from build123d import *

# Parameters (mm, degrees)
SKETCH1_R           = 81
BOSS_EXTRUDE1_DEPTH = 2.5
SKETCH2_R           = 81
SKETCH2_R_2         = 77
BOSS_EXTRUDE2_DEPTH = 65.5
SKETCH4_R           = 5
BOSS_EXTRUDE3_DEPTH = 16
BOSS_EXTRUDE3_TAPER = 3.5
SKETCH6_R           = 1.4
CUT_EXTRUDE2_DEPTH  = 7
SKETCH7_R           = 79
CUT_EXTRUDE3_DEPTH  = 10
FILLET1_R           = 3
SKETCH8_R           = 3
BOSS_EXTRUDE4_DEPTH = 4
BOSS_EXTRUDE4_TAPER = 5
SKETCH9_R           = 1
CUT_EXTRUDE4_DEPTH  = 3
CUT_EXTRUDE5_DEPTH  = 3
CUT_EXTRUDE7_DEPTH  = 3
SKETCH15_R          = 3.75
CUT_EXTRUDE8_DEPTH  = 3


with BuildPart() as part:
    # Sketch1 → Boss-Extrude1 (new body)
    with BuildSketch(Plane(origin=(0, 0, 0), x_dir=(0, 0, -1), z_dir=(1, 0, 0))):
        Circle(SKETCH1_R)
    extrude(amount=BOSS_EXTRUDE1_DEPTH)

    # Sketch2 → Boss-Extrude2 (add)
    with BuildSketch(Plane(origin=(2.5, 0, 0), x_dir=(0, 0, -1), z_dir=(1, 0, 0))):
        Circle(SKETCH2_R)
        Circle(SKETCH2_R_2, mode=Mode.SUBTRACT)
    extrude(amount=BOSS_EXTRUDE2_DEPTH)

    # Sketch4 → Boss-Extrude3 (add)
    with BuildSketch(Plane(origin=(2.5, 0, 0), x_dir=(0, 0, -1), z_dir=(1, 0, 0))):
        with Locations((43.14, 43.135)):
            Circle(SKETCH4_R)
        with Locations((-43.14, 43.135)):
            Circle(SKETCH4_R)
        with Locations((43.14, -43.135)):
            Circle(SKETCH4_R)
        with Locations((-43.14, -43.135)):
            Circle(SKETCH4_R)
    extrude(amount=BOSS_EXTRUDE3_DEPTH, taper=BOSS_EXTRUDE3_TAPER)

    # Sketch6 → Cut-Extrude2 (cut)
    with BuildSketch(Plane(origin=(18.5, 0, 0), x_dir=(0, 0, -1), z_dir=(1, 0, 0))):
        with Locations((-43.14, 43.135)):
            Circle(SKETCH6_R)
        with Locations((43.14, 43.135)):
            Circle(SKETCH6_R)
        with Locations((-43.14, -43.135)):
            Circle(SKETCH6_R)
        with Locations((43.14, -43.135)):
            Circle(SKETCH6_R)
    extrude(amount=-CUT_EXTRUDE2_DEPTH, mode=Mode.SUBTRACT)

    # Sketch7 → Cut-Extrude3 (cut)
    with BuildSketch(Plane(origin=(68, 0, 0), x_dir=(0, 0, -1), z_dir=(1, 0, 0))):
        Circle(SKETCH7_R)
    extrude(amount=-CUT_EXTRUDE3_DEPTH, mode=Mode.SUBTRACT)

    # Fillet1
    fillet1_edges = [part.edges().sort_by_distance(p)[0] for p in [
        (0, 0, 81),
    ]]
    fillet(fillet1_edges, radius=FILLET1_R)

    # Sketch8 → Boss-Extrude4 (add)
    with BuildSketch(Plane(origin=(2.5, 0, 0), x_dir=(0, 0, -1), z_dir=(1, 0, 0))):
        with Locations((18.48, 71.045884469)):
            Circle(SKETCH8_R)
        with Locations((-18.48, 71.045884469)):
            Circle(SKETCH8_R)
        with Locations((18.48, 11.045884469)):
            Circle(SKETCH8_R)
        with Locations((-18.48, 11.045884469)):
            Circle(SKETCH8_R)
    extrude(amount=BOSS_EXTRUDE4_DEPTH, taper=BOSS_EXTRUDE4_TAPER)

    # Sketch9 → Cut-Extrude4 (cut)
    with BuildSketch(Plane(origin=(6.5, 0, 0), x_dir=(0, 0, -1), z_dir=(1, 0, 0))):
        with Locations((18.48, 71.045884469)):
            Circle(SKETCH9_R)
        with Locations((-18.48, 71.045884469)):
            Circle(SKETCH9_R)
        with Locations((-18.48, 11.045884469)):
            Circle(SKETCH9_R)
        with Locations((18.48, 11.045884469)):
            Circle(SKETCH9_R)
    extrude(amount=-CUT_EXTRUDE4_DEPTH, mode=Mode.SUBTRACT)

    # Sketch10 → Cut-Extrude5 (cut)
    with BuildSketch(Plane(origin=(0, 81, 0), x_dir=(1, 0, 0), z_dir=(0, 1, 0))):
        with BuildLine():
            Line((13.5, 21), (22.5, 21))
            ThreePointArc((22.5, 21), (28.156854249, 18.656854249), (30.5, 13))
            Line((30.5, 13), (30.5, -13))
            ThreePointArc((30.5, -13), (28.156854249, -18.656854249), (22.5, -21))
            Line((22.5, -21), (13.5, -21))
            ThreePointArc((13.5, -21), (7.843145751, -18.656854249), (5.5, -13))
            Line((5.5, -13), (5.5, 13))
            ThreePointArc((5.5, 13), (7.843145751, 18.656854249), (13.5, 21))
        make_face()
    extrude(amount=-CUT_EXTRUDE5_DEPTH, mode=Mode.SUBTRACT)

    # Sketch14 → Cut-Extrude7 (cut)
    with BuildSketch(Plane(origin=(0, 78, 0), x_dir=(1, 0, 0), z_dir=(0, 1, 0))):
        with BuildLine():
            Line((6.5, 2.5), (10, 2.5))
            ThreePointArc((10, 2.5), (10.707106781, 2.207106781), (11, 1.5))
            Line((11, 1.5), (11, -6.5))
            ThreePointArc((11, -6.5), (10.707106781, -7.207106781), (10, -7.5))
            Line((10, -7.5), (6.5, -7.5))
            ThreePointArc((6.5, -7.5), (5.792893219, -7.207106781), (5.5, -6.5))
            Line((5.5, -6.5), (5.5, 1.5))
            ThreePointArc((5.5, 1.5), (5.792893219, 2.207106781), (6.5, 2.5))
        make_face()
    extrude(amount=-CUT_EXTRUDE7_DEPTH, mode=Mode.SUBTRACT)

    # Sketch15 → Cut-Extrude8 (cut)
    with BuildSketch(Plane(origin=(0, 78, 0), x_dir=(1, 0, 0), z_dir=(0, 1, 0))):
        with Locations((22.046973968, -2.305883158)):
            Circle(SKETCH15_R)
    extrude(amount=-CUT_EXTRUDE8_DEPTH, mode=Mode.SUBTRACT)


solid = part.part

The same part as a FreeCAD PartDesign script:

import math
import FreeCAD as App
import Part
import Sketcher

V = App.Vector
Q = App.Units.Quantity


def edges_at(feature, points):
    """Names of the edges that pass closest to the given points."""
    edges = feature.Shape.Edges
    near = lambda p: min(range(len(edges)), key=lambda i: edges[i].distToShape(Part.Vertex(*p))[0])
    return sorted({f"Edge{near(p) + 1}" for p in points})

doc = App.newDocument("Part")
params = doc.addObject("Spreadsheet::Sheet", "Params")
for row, (alias, value) in enumerate([
    ("sketch1_diameter", "162 mm"),
    ("pad1_length", "2.5 mm"),
    ("sketch2_diameter", "162 mm"),
    ("sketch2_diameter2", "154 mm"),
    ("pad2_length", "65.5 mm"),
    ("sketch3_diameter", "10 mm"),
    ("pad3_length", "16 mm"),
    ("pad3_taper", "-3.5 deg"),
    ("sketch4_diameter", "2.8 mm"),
    ("pocket1_length", "7 mm"),
    ("sketch5_diameter", "158 mm"),
    ("pocket2_length", "10 mm"),
    ("fillet_radius", "3 mm"),
    ("sketch6_diameter", "6 mm"),
    ("pad4_length", "4 mm"),
    ("pad4_taper", "-5 deg"),
    ("sketch7_diameter", "2 mm"),
    ("pocket3_length", "3 mm"),
    ("sketch8_radius", "8 mm"),
    ("sketch8_width", "9 mm"),
    ("sketch8_height", "26 mm"),
    ("pocket4_length", "3 mm"),
    ("sketch9_radius", "1 mm"),
    ("sketch9_height", "8 mm"),
    ("sketch9_width", "3.5 mm"),
    ("pocket5_length", "3 mm"),
    ("sketch10_diameter", "7.5 mm"),
    ("pocket6_length", "3 mm"),
], start=1):
    params.set(f"A{row}", alias)
    params.set(f"B{row}", "=" + value)
    params.setAlias(f"B{row}", alias)

body = doc.addObject("PartDesign::Body", "Body")

# Sketch on YZ plane
sketch1 = body.newObject("Sketcher::SketchObject", "Sketch")
sketch1.AttachmentSupport = (doc.getObject("YZ_Plane"), [""])
sketch1.MapMode = "FlatFace"
sketch1.addGeometry(Part.Circle(V(0, 0, 0), V(0, 0, 1), 81), False)
sketch1.addConstraint([
    Sketcher.Constraint("Coincident", 0, 3, -1, 1),
    Sketcher.Constraint("Diameter", 0, Q("162 mm")),
])
sketch1.setExpression("Constraints[1]", "Params.sketch1_diameter")
pad1 = body.newObject("PartDesign::Pad", "Pad")
pad1.Profile = sketch1
pad1.setExpression("Length", "Params.pad1_length")

# Sketch on YZ plane
sketch2 = body.newObject("Sketcher::SketchObject", "Sketch001")
sketch2.AttachmentSupport = (doc.getObject("YZ_Plane"), [""])
sketch2.MapMode = "FlatFace"
sketch2.AttachmentOffset = App.Placement(V(0, 0, 2.5), App.Rotation())
sketch2.addGeometry([
    Part.Circle(V(0, 0, 0), V(0, 0, 1), 81),
    Part.Circle(V(0, 0, 0), V(0, 0, 1), 77),
], False)
sketch2.addConstraint([
    Sketcher.Constraint("Coincident", 0, 3, -1, 1),
    Sketcher.Constraint("Coincident", 1, 3, -1, 1),
    Sketcher.Constraint("Diameter", 0, Q("162 mm")),
    Sketcher.Constraint("Diameter", 1, Q("154 mm")),
])
sketch2.setExpression("Constraints[2]", "Params.sketch2_diameter")
sketch2.setExpression("Constraints[3]", "Params.sketch2_diameter2")
pad2 = body.newObject("PartDesign::Pad", "Pad001")
pad2.Profile = sketch2
pad2.setExpression("Length", "Params.pad2_length")

# Sketch on YZ plane
sketch3 = body.newObject("Sketcher::SketchObject", "Sketch002")
sketch3.AttachmentSupport = (doc.getObject("YZ_Plane"), [""])
sketch3.MapMode = "FlatFace"
sketch3.AttachmentOffset = App.Placement(V(0, 0, 2.5), App.Rotation())
sketch3.addGeometry([
    Part.Circle(V(43.135, -43.14, 0), V(0, 0, 1), 5),
    Part.Circle(V(43.135, 43.14, 0), V(0, 0, 1), 5),
    Part.Circle(V(-43.135, -43.14, 0), V(0, 0, 1), 5),
    Part.Circle(V(-43.135, 43.14, 0), V(0, 0, 1), 5),
], False)
sketch3.addConstraint([
    Sketcher.Constraint("Equal", 0, 1),
    Sketcher.Constraint("Equal", 1, 2),
    Sketcher.Constraint("Equal", 2, 3),
    Sketcher.Constraint("Symmetric", 1, 3, 2, 3, -1, 1),
    Sketcher.Constraint("Symmetric", 0, 3, 3, 3, -1, 1),
    Sketcher.Constraint("Symmetric", 0, 3, 2, 3, -2),
    Sketcher.Constraint("Diameter", 0, Q("10 mm")),
    Sketcher.Constraint("DistanceY", 0, 3, -1, 1, Q("43.14 mm")),
    Sketcher.Constraint("DistanceX", 2, 3, 0, 3, Q("86.27 mm")),
])
sketch3.setExpression("Constraints[6]", "Params.sketch3_diameter")
pad3 = body.newObject("PartDesign::Pad", "Pad002")
pad3.Profile = sketch3
pad3.setExpression("Length", "Params.pad3_length")
pad3.setExpression("TaperAngle", "Params.pad3_taper")

# Sketch on YZ plane
sketch4 = body.newObject("Sketcher::SketchObject", "Sketch003")
sketch4.AttachmentSupport = (doc.getObject("YZ_Plane"), [""])
sketch4.MapMode = "FlatFace"
sketch4.AttachmentOffset = App.Placement(V(0, 0, 18.5), App.Rotation())
sketch4.addGeometry([
    Part.Circle(V(43.135, 43.14, 0), V(0, 0, 1), 1.4),
    Part.Circle(V(43.135, -43.14, 0), V(0, 0, 1), 1.4),
    Part.Circle(V(-43.135, 43.14, 0), V(0, 0, 1), 1.4),
    Part.Circle(V(-43.135, -43.14, 0), V(0, 0, 1), 1.4),
], False)
sketch4.addConstraint([
    Sketcher.Constraint("Equal", 0, 1),
    Sketcher.Constraint("Equal", 1, 2),
    Sketcher.Constraint("Equal", 2, 3),
    Sketcher.Constraint("Symmetric", 1, 3, 2, 3, -1, 1),
    Sketcher.Constraint("Symmetric", 0, 3, 3, 3, -1, 1),
    Sketcher.Constraint("Symmetric", 0, 3, 2, 3, -2),
    Sketcher.Constraint("Diameter", 0, Q("2.8 mm")),
    Sketcher.Constraint("DistanceY", -1, 1, 0, 3, Q("43.14 mm")),
    Sketcher.Constraint("DistanceX", 2, 3, 0, 3, Q("86.27 mm")),
])
sketch4.setExpression("Constraints[6]", "Params.sketch4_diameter")
pocket1 = body.newObject("PartDesign::Pocket", "Pocket")
pocket1.Profile = sketch4
pocket1.setExpression("Length", "Params.pocket1_length")

# Sketch on YZ plane
sketch5 = body.newObject("Sketcher::SketchObject", "Sketch004")
sketch5.AttachmentSupport = (doc.getObject("YZ_Plane"), [""])
sketch5.MapMode = "FlatFace"
sketch5.AttachmentOffset = App.Placement(V(0, 0, 68), App.Rotation())
sketch5.addGeometry(Part.Circle(V(0, 0, 0), V(0, 0, 1), 79), False)
sketch5.addConstraint([
    Sketcher.Constraint("Coincident", 0, 3, -1, 1),
    Sketcher.Constraint("Diameter", 0, Q("158 mm")),
])
sketch5.setExpression("Constraints[1]", "Params.sketch5_diameter")
pocket2 = body.newObject("PartDesign::Pocket", "Pocket001")
pocket2.Profile = sketch5
pocket2.setExpression("Length", "Params.pocket2_length")
doc.recompute()

fillet = body.newObject("PartDesign::Fillet", "Fillet")
fillet.Base = (pocket2, edges_at(pocket2, [(0, 0, 81)]))
fillet.setExpression("Radius", "Params.fillet_radius")

# Sketch on YZ plane
sketch6 = body.newObject("Sketcher::SketchObject", "Sketch005")
sketch6.AttachmentSupport = (doc.getObject("YZ_Plane"), [""])
sketch6.MapMode = "FlatFace"
sketch6.AttachmentOffset = App.Placement(V(0, 0, 2.5), App.Rotation())
sketch6.addGeometry([
    Part.Circle(V(71.045884, -18.48, 0), V(0, 0, 1), 3),
    Part.Circle(V(71.045884, 18.48, 0), V(0, 0, 1), 3),
    Part.Circle(V(11.045884, -18.48, 0), V(0, 0, 1), 3),
    Part.Circle(V(11.045884, 18.48, 0), V(0, 0, 1), 3),
], False)
sketch6.addConstraint([
    Sketcher.Constraint("Equal", 0, 1),
    Sketcher.Constraint("Equal", 1, 2),
    Sketcher.Constraint("Equal", 2, 3),
    Sketcher.Constraint("Symmetric", 0, 3, 1, 3, -1),
    Sketcher.Constraint("Symmetric", 2, 3, 3, 3, -1),
    Sketcher.Constraint("Horizontal", 0, 3, 2, 3),
    Sketcher.Constraint("Diameter", 0, Q("6 mm")),
    Sketcher.Constraint("DistanceX", 2, 3, 0, 3, Q("60 mm")),
    Sketcher.Constraint("DistanceY", 0, 3, -1, 1, Q("18.48 mm")),
    Sketcher.Constraint("DistanceX", -1, 1, 0, 3, Q("71.045884 mm")),
])
sketch6.setExpression("Constraints[6]", "Params.sketch6_diameter")
pad4 = body.newObject("PartDesign::Pad", "Pad003")
pad4.Profile = sketch6
pad4.setExpression("Length", "Params.pad4_length")
pad4.setExpression("TaperAngle", "Params.pad4_taper")

# Sketch on YZ plane
sketch7 = body.newObject("Sketcher::SketchObject", "Sketch006")
sketch7.AttachmentSupport = (doc.getObject("YZ_Plane"), [""])
sketch7.MapMode = "FlatFace"
sketch7.AttachmentOffset = App.Placement(V(0, 0, 6.5), App.Rotation())
sketch7.addGeometry([
    Part.Circle(V(71.045884, -18.48, 0), V(0, 0, 1), 1),
    Part.Circle(V(71.045884, 18.48, 0), V(0, 0, 1), 1),
    Part.Circle(V(11.045884, 18.48, 0), V(0, 0, 1), 1),
    Part.Circle(V(11.045884, -18.48, 0), V(0, 0, 1), 1),
], False)
sketch7.addConstraint([
    Sketcher.Constraint("Equal", 0, 1),
    Sketcher.Constraint("Equal", 1, 2),
    Sketcher.Constraint("Equal", 2, 3),
    Sketcher.Constraint("Symmetric", 0, 3, 1, 3, -1),
    Sketcher.Constraint("Symmetric", 2, 3, 3, 3, -1),
    Sketcher.Constraint("Horizontal", 1, 3, 2, 3),
    Sketcher.Constraint("Diameter", 0, Q("2 mm")),
    Sketcher.Constraint("DistanceX", 2, 3, 1, 3, Q("60 mm")),
    Sketcher.Constraint("DistanceY", 0, 3, -1, 1, Q("18.48 mm")),
    Sketcher.Constraint("DistanceX", -1, 1, 0, 3, Q("71.045884 mm")),
])
sketch7.setExpression("Constraints[6]", "Params.sketch7_diameter")
pocket3 = body.newObject("PartDesign::Pocket", "Pocket002")
pocket3.Profile = sketch7
pocket3.setExpression("Length", "Params.pocket3_length")

# Sketch on XZ plane
sketch8 = body.newObject("Sketcher::SketchObject", "Sketch007")
sketch8.AttachmentSupport = (doc.getObject("XZ_Plane"), [""])
sketch8.MapMode = "FlatFace"
sketch8.AttachmentOffset = App.Placement(V(0, 0, -81), App.Rotation())
sketch8.addGeometry([
    Part.LineSegment(V(22.5, -21, 0), V(13.5, -21, 0)),  # 0
    Part.ArcOfCircle(Part.Circle(V(13.5, -13, 0), V(0, 0, 1), 8), math.radians(-180), math.radians(-90)),  # 1
    Part.LineSegment(V(5.5, -13, 0), V(5.5, 13, 0)),  # 2
    Part.ArcOfCircle(Part.Circle(V(13.5, 13, 0), V(0, 0, 1), 8), math.radians(90), math.radians(180)),  # 3
    Part.LineSegment(V(13.5, 21, 0), V(22.5, 21, 0)),  # 4
    Part.ArcOfCircle(Part.Circle(V(22.5, 13, 0), V(0, 0, 1), 8), math.radians(0), math.radians(90)),  # 5
    Part.LineSegment(V(30.5, 13, 0), V(30.5, -13, 0)),  # 6
    Part.ArcOfCircle(Part.Circle(V(22.5, -13, 0), V(0, 0, 1), 8), math.radians(-90), math.radians(0)),  # 7
], False)
sketch8.addConstraint([
    Sketcher.Constraint("Tangent", 0, 2, 1, 2),
    Sketcher.Constraint("Tangent", 1, 1, 2, 1),
    Sketcher.Constraint("Tangent", 2, 2, 3, 2),
    Sketcher.Constraint("Tangent", 3, 1, 4, 1),
    Sketcher.Constraint("Tangent", 4, 2, 5, 2),
    Sketcher.Constraint("Tangent", 5, 1, 6, 1),
    Sketcher.Constraint("Tangent", 6, 2, 7, 2),
    Sketcher.Constraint("Tangent", 7, 1, 0, 1),
    Sketcher.Constraint("Horizontal", 0),
    Sketcher.Constraint("Vertical", 2),
    Sketcher.Constraint("Horizontal", 4),
    Sketcher.Constraint("Vertical", 6),
    Sketcher.Constraint("Equal", 1, 3),
    Sketcher.Constraint("Equal", 3, 5),
    Sketcher.Constraint("Equal", 5, 7),
    Sketcher.Constraint("Radius", 1, Q("8 mm")),
    Sketcher.Constraint("DistanceX", 0, 2, 0, 1, Q("9 mm")),
    Sketcher.Constraint("DistanceY", 2, 1, 2, 2, Q("26 mm")),
    Sketcher.Constraint("DistanceY", 1, 3, -1, 1, Q("13 mm")),
    Sketcher.Constraint("DistanceX", -1, 1, 1, 3, Q("13.5 mm")),
])
sketch8.setExpression("Constraints[15]", "Params.sketch8_radius")
sketch8.setExpression("Constraints[16]", "Params.sketch8_width")
sketch8.setExpression("Constraints[17]", "Params.sketch8_height")
pocket4 = body.newObject("PartDesign::Pocket", "Pocket003")
pocket4.Profile = sketch8
pocket4.setExpression("Length", "Params.pocket4_length")
pocket4.Reversed = True

# Sketch on XZ plane
sketch9 = body.newObject("Sketcher::SketchObject", "Sketch008")
sketch9.AttachmentSupport = (doc.getObject("XZ_Plane"), [""])
sketch9.MapMode = "FlatFace"
sketch9.AttachmentOffset = App.Placement(V(0, 0, -78), App.Rotation())
sketch9.addGeometry([
    Part.LineSegment(V(10, -2.5, 0), V(6.5, -2.5, 0)),  # 0
    Part.ArcOfCircle(Part.Circle(V(6.5, -1.5, 0), V(0, 0, 1), 1), math.radians(-180), math.radians(-90)),  # 1
    Part.LineSegment(V(5.5, -1.5, 0), V(5.5, 6.5, 0)),  # 2
    Part.ArcOfCircle(Part.Circle(V(6.5, 6.5, 0), V(0, 0, 1), 1), math.radians(90), math.radians(180)),  # 3
    Part.LineSegment(V(6.5, 7.5, 0), V(10, 7.5, 0)),  # 4
    Part.ArcOfCircle(Part.Circle(V(10, 6.5, 0), V(0, 0, 1), 1), math.radians(0), math.radians(90)),  # 5
    Part.LineSegment(V(11, 6.5, 0), V(11, -1.5, 0)),  # 6
    Part.ArcOfCircle(Part.Circle(V(10, -1.5, 0), V(0, 0, 1), 1), math.radians(-90), math.radians(0)),  # 7
], False)
sketch9.addConstraint([
    Sketcher.Constraint("Tangent", 0, 2, 1, 2),
    Sketcher.Constraint("Tangent", 1, 1, 2, 1),
    Sketcher.Constraint("Tangent", 2, 2, 3, 2),
    Sketcher.Constraint("Tangent", 3, 1, 4, 1),
    Sketcher.Constraint("Tangent", 4, 2, 5, 2),
    Sketcher.Constraint("Tangent", 5, 1, 6, 1),
    Sketcher.Constraint("Tangent", 6, 2, 7, 2),
    Sketcher.Constraint("Tangent", 7, 1, 0, 1),
    Sketcher.Constraint("Horizontal", 0),
    Sketcher.Constraint("Vertical", 2),
    Sketcher.Constraint("Horizontal", 4),
    Sketcher.Constraint("Vertical", 6),
    Sketcher.Constraint("Equal", 1, 3),
    Sketcher.Constraint("Equal", 3, 5),
    Sketcher.Constraint("Equal", 5, 7),
    Sketcher.Constraint("Radius", 1, Q("1 mm")),
    Sketcher.Constraint("DistanceY", 2, 1, 2, 2, Q("8 mm")),
    Sketcher.Constraint("DistanceX", 0, 2, 0, 1, Q("3.5 mm")),
    Sketcher.Constraint("DistanceX", -1, 1, 5, 3, Q("10 mm")),
    Sketcher.Constraint("DistanceY", 1, 3, -1, 1, Q("1.5 mm")),
])
sketch9.setExpression("Constraints[15]", "Params.sketch9_radius")
sketch9.setExpression("Constraints[16]", "Params.sketch9_height")
sketch9.setExpression("Constraints[17]", "Params.sketch9_width")
pocket5 = body.newObject("PartDesign::Pocket", "Pocket004")
pocket5.Profile = sketch9
pocket5.setExpression("Length", "Params.pocket5_length")
pocket5.Reversed = True

# Sketch on XZ plane
sketch10 = body.newObject("Sketcher::SketchObject", "Sketch009")
sketch10.AttachmentSupport = (doc.getObject("XZ_Plane"), [""])
sketch10.MapMode = "FlatFace"
sketch10.AttachmentOffset = App.Placement(V(0, 0, -78), App.Rotation())
sketch10.addGeometry(Part.Circle(V(22.046974, 2.305883, 0), V(0, 0, 1), 3.75), False)
sketch10.addConstraint([
    Sketcher.Constraint("Diameter", 0, Q("7.5 mm")),
    Sketcher.Constraint("DistanceX", -1, 1, 0, 3, Q("22.046974 mm")),
    Sketcher.Constraint("DistanceY", -1, 1, 0, 3, Q("2.305883 mm")),
])
sketch10.setExpression("Constraints[0]", "Params.sketch10_diameter")
pocket6 = body.newObject("PartDesign::Pocket", "Pocket005")
pocket6.Profile = sketch10
pocket6.setExpression("Length", "Params.pocket6_length")
pocket6.Reversed = True

doc.recompute()
